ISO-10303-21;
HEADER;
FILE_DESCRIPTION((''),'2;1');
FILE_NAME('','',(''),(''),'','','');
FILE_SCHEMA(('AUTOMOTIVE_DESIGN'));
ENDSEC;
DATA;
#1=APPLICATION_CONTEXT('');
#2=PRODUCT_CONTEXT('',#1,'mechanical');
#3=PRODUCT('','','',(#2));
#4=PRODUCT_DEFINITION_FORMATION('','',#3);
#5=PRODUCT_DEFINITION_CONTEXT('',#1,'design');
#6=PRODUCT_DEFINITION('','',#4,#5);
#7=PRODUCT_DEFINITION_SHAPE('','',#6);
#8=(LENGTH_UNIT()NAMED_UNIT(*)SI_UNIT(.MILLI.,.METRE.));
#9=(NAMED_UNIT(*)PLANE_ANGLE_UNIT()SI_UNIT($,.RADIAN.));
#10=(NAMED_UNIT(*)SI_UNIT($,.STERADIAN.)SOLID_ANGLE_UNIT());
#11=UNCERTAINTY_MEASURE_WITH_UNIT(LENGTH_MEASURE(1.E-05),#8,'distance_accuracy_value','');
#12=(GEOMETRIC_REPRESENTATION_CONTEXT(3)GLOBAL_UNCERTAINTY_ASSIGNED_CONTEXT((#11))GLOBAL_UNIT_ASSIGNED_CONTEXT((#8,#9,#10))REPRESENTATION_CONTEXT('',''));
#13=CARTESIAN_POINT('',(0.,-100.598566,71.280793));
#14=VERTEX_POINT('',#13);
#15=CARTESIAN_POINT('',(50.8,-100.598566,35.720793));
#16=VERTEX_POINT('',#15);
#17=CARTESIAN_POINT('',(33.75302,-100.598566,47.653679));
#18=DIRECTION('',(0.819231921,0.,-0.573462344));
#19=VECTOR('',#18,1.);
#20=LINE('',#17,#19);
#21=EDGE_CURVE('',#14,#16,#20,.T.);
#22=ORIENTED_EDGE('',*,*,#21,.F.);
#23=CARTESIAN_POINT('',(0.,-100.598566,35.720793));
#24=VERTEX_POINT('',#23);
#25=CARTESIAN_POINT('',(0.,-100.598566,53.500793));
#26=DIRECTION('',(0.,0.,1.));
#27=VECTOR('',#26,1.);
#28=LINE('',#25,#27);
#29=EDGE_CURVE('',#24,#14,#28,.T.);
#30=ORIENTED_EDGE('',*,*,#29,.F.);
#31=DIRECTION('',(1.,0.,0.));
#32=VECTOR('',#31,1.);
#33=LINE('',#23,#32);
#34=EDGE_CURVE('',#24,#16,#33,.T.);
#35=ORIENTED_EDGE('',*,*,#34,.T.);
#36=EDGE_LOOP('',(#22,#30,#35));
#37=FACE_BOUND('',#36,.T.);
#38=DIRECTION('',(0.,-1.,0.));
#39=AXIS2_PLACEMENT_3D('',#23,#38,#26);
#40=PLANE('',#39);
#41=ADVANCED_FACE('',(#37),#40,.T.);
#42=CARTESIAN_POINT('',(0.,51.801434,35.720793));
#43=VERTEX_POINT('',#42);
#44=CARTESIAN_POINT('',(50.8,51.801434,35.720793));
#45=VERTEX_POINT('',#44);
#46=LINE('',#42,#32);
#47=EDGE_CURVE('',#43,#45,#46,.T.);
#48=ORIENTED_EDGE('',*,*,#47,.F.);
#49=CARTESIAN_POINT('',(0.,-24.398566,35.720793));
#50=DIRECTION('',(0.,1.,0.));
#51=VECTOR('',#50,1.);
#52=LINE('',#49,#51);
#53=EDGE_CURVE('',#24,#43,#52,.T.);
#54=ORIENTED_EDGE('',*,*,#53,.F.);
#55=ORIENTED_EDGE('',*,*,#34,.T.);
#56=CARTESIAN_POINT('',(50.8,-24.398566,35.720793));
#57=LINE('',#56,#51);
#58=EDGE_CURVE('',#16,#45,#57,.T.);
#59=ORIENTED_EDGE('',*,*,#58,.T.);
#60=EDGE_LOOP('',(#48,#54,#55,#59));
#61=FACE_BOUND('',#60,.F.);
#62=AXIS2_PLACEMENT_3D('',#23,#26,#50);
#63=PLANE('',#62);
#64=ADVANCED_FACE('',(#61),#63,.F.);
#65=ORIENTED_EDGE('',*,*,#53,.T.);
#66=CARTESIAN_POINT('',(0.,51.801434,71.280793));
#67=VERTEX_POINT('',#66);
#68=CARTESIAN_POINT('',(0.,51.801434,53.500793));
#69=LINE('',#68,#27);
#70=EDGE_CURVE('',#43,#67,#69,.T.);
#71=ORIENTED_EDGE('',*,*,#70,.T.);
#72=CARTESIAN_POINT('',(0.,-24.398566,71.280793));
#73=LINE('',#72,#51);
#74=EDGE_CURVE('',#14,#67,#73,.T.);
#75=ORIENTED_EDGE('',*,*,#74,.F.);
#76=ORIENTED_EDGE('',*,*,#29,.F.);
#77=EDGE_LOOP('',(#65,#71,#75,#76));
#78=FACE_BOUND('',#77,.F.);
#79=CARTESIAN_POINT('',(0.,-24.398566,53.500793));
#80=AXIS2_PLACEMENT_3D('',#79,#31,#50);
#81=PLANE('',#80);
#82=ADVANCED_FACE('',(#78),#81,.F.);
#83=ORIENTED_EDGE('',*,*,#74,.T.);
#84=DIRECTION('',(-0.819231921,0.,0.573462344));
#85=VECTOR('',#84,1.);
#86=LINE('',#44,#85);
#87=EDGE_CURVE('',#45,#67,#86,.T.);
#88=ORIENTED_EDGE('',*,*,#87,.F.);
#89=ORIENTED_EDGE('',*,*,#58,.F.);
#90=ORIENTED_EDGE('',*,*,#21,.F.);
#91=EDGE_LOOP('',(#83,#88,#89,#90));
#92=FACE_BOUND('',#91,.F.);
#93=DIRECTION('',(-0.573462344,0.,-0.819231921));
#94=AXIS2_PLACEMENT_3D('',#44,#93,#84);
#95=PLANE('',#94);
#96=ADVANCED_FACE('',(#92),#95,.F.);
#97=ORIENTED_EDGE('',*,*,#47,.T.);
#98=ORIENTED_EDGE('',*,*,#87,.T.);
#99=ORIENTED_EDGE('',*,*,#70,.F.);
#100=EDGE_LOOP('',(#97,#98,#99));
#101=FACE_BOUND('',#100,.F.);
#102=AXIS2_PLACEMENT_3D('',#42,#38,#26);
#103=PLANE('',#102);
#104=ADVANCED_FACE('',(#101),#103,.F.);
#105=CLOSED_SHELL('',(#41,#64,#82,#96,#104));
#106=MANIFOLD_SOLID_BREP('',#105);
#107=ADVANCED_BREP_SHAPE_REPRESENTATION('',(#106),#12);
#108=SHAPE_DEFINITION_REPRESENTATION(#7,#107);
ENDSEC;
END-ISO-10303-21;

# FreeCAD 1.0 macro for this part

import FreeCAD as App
import Part
import Sketcher

V = App.Vector
Q = App.Units.Quantity

doc = App.newDocument("Part")
body = doc.addObject("PartDesign::Body", "Body")

sketch1 = doc.addObject("Sketcher::SketchObject", "Sketch")
body.addObject(sketch1)
sketch1.AttachmentSupport = (doc.YZ_Plane, [""])
sketch1.MapMode = "FlatFace"
sketch1.addGeometry(Part.LineSegment(V(-101, 71, 0), V(-101, 36, 0)), False)
sketch1.addGeometry(Part.LineSegment(V(-101, 36, 0), V(52, 36, 0)), False)
sketch1.addGeometry(Part.LineSegment(V(52, 36, 0), V(52, 71, 0)), False)
sketch1.addGeometry(Part.LineSegment(V(52, 71, 0), V(-101, 71, 0)), False)
sketch1.addConstraint(Sketcher.Constraint("Coincident", 0, 2, 1, 1))
sketch1.addConstraint(Sketcher.Constraint("Coincident", 1, 2, 2, 1))
sketch1.addConstraint(Sketcher.Constraint("Coincident", 2, 2, 3, 1))
sketch1.addConstraint(Sketcher.Constraint("Coincident", 3, 2, 0, 1))
sketch1.addConstraint(Sketcher.Constraint("Vertical", 0))
sketch1.addConstraint(Sketcher.Constraint("Horizontal", 1))
sketch1.addConstraint(Sketcher.Constraint("Vertical", 2))
sketch1.addConstraint(Sketcher.Constraint("Horizontal", 3))
sketch1.addConstraint(Sketcher.Constraint("DistanceX", 1, 1, 1, 2, Q("6 in")))
sketch1.addConstraint(Sketcher.Constraint("DistanceY", 0, 2, 0, 1, Q("1.4 in")))
sketch1.addConstraint(Sketcher.Constraint("DistanceX", 0, 2, -1, 1, 100.598566))
sketch1.addConstraint(Sketcher.Constraint("DistanceY", -1, 1, 0, 2, 35.720793))
pad1 = doc.addObject("PartDesign::Pad", "Pad")
body.addObject(pad1)
pad1.Profile = sketch1
pad1.Length = Q("2 in")

sketch2 = doc.addObject("Sketcher::SketchObject", "Sketch001")
body.addObject(sketch2)
sketch2.AttachmentSupport = (doc.XZ_Plane, [""])
sketch2.MapMode = "FlatFace"
sketch2.AttachmentOffset = App.Placement(V(0, 0, -51.801434), App.Rotation())
sketch2.addGeometry(Part.LineSegment(V(51, 36, 0), V(0, 71, 0)), False)
sketch2.addGeometry(Part.LineSegment(V(0, 71, 0), V(51, 71, 0)), False)
sketch2.addGeometry(Part.LineSegment(V(51, 71, 0), V(51, 36, 0)), False)
sketch2.addConstraint(Sketcher.Constraint("Coincident", 0, 2, 1, 1))
sketch2.addConstraint(Sketcher.Constraint("Coincident", 1, 2, 2, 1))
sketch2.addConstraint(Sketcher.Constraint("Coincident", 2, 2, 0, 1))
sketch2.addConstraint(Sketcher.Constraint("Horizontal", 1))
sketch2.addConstraint(Sketcher.Constraint("Vertical", 2))
sketch2.addConstraint(Sketcher.Constraint("PointOnObject", 0, 2, -2))
sketch2.addConstraint(Sketcher.Constraint("DistanceX", 1, 1, 1, 2, Q("2 in")))
sketch2.addConstraint(Sketcher.Constraint("DistanceY", 2, 2, 2, 1, Q("1.4 in")))
sketch2.addConstraint(Sketcher.Constraint("DistanceY", -1, 1, 0, 2, 71.280793))
pocket1 = doc.addObject("PartDesign::Pocket", "Pocket")
body.addObject(pocket1)
pocket1.Profile = sketch2
pocket1.Length = Q("8 in")
pocket1.Reversed = True

doc.recompute()
